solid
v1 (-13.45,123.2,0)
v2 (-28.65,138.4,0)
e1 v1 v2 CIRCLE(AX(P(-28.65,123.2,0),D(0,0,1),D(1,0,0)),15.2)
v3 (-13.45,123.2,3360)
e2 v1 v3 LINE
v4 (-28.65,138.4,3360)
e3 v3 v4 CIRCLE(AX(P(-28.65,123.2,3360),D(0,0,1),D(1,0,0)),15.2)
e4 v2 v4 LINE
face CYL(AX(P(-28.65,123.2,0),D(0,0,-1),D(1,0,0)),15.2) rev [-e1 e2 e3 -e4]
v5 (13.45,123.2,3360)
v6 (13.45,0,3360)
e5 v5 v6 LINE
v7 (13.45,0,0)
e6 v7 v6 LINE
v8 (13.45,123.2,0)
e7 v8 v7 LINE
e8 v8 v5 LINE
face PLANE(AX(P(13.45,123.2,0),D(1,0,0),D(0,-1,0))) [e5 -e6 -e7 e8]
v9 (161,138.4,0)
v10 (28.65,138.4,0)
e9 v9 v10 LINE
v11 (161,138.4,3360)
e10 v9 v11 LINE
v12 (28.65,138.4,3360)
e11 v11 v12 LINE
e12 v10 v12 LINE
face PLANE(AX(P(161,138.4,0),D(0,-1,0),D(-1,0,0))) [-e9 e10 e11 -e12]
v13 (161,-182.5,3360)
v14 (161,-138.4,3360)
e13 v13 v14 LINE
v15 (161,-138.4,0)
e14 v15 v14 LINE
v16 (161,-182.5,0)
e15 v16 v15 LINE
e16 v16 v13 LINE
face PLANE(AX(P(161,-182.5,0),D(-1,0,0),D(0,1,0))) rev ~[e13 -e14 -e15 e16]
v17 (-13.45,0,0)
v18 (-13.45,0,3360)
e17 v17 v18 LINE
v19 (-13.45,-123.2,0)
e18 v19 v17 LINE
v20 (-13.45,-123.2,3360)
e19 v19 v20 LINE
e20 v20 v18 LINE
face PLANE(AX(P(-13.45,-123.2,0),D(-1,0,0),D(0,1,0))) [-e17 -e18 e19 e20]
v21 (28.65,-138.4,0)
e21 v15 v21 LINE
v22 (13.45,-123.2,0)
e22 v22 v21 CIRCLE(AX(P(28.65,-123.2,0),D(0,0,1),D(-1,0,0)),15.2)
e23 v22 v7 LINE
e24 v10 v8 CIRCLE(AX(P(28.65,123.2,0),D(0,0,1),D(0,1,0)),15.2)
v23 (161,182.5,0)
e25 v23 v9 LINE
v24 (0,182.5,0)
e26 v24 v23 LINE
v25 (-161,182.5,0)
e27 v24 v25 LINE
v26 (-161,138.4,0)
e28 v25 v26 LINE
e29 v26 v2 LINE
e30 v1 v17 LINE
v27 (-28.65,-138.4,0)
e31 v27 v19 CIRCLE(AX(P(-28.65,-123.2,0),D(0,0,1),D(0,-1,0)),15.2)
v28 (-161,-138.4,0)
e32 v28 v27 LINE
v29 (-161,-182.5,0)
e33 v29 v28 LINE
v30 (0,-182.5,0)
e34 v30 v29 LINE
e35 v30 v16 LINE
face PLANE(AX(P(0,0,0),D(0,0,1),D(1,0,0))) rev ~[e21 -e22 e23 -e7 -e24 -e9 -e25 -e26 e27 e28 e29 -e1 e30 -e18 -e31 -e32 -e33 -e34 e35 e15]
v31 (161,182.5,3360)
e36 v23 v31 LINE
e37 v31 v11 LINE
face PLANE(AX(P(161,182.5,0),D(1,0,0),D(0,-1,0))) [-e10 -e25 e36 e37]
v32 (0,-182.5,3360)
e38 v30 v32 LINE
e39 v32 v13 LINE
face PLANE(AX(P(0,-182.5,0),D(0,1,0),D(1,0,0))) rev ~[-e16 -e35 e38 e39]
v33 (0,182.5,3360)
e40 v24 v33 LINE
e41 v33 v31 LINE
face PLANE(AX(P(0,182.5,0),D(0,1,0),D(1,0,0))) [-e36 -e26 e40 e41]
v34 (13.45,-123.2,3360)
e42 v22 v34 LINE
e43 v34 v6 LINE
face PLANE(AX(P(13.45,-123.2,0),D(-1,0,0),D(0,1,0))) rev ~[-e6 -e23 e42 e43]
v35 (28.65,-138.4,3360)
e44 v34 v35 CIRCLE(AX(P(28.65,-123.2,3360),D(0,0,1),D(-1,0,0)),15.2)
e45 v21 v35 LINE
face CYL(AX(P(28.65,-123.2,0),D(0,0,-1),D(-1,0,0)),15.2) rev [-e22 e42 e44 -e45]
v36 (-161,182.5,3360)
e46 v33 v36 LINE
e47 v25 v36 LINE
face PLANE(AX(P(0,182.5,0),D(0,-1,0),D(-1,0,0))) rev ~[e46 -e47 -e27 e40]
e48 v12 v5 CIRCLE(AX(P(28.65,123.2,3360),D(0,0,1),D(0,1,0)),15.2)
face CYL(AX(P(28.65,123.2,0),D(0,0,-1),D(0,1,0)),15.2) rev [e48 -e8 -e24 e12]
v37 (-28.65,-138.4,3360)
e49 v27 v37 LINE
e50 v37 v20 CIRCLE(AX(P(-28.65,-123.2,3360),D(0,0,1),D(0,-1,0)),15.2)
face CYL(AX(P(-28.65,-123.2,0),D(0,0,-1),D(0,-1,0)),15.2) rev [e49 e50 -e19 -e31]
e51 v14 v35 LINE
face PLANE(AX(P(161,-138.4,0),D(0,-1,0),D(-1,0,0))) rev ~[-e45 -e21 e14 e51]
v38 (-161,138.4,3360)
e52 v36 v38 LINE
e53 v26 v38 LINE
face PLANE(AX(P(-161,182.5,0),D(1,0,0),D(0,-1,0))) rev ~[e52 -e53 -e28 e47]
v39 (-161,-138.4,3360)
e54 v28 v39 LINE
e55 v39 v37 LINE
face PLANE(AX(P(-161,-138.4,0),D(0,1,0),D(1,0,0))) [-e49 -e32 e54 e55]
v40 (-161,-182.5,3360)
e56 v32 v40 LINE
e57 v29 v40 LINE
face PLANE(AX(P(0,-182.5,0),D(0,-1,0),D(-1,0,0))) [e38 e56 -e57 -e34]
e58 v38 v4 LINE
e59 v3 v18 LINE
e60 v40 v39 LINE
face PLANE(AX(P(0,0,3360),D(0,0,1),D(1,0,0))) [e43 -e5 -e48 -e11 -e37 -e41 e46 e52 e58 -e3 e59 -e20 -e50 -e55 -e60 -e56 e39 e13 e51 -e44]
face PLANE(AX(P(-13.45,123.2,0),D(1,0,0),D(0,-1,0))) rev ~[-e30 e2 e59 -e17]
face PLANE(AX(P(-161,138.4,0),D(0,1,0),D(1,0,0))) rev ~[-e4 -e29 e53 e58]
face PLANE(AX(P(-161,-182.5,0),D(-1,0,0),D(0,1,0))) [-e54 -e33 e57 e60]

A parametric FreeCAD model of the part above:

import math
import FreeCAD as App
import Part
import Sketcher

V = App.Vector
Q = App.Units.Quantity

doc = App.newDocument("Part")
body = doc.addObject("PartDesign::Body", "Body")

# Sketch on XY plane
sketch1 = doc.addObject("Sketcher::SketchObject", "Sketch")
body.addObject(sketch1)
sketch1.AttachmentSupport = (doc.XY_Plane, [""])
sketch1.MapMode = "FlatFace"
sketch1.addGeometry(Part.LineSegment(V(-161, -138, 0), V(-161, -182, 0)), False)
sketch1.addGeometry(Part.LineSegment(V(-161, -182, 0), V(161, -182, 0)), False)
sketch1.addGeometry(Part.LineSegment(V(161, -182, 0), V(161, -138, 0)), False)
sketch1.addGeometry(Part.LineSegment(V(161, -138, 0), V(29, -138, 0)), False)
sketch1.addGeometry(Part.ArcOfCircle(Part.Circle(V(29, -123, 0), V(0, 0, 1), 15), math.radians(180), math.radians(270)), False)
sketch1.addGeometry(Part.LineSegment(V(13, -123, 0), V(13, 123, 0)), False)
sketch1.addGeometry(Part.ArcOfCircle(Part.Circle(V(29, 123, 0), V(0, 0, 1), 15), math.radians(90), math.radians(180)), False)
sketch1.addGeometry(Part.LineSegment(V(29, 138, 0), V(161, 138, 0)), False)
sketch1.addGeometry(Part.LineSegment(V(161, 138, 0), V(161, 182, 0)), False)
sketch1.addGeometry(Part.LineSegment(V(161, 182, 0), V(-161, 182, 0)), False)
sketch1.addGeometry(Part.LineSegment(V(-161, 182, 0), V(-161, 138, 0)), False)
sketch1.addGeometry(Part.LineSegment(V(-161, 138, 0), V(-29, 138, 0)), False)
sketch1.addGeometry(Part.ArcOfCircle(Part.Circle(V(-29, 123, 0), V(0, 0, 1), 15), math.radians(0), math.radians(90)), False)
sketch1.addGeometry(Part.LineSegment(V(-13, 123, 0), V(-13, -123, 0)), False)
sketch1.addGeometry(Part.ArcOfCircle(Part.Circle(V(-29, -123, 0), V(0, 0, 1), 15), math.radians(-90), math.radians(0)), False)
sketch1.addGeometry(Part.LineSegment(V(-29, -138, 0), V(-161, -138, 0)), False)
sketch1.addConstraint(Sketcher.Constraint("Coincident", 0, 2, 1, 1))
sketch1.addConstraint(Sketcher.Constraint("Coincident", 1, 2, 2, 1))
sketch1.addConstraint(Sketcher.Constraint("Coincident", 2, 2, 3, 1))
sketch1.addConstraint(Sketcher.Constraint("Tangent", 3, 2, 4, 2))
sketch1.addConstraint(Sketcher.Constraint("Tangent", 4, 1, 5, 1))
sketch1.addConstraint(Sketcher.Constraint("Tangent", 5, 2, 6, 2))
sketch1.addConstraint(Sketcher.Constraint("Tangent", 6, 1, 7, 1))
sketch1.addConstraint(Sketcher.Constraint("Coincident", 7, 2, 8, 1))
sketch1.addConstraint(Sketcher.Constraint("Coincident", 8, 2, 9, 1))
sketch1.addConstraint(Sketcher.Constraint("Coincident", 9, 2, 10, 1))
sketch1.addConstraint(Sketcher.Constraint("Coincident", 10, 2, 11, 1))
sketch1.addConstraint(Sketcher.Constraint("Tangent", 11, 2, 12, 2))
sketch1.addConstraint(Sketcher.Constraint("Tangent", 12, 1, 13, 1))
sketch1.addConstraint(Sketcher.Constraint("Tangent", 13, 2, 14, 2))
sketch1.addConstraint(Sketcher.Constraint("Tangent", 14, 1, 15, 1))
sketch1.addConstraint(Sketcher.Constraint("Coincident", 15, 2, 0, 1))
sketch1.addConstraint(Sketcher.Constraint("Vertical", 0))
sketch1.addConstraint(Sketcher.Constraint("Horizontal", 1))
sketch1.addConstraint(Sketcher.Constraint("Vertical", 2))
sketch1.addConstraint(Sketcher.Constraint("Horizontal", 3))
sketch1.addConstraint(Sketcher.Constraint("Vertical", 5))
sketch1.addConstraint(Sketcher.Constraint("Horizontal", 7))
sketch1.addConstraint(Sketcher.Constraint("Vertical", 8))
sketch1.addConstraint(Sketcher.Constraint("Horizontal", 9))
sketch1.addConstraint(Sketcher.Constraint("Vertical", 10))
sketch1.addConstraint(Sketcher.Constraint("Horizontal", 11))
sketch1.addConstraint(Sketcher.Constraint("Vertical", 13))
sketch1.addConstraint(Sketcher.Constraint("Horizontal", 15))
sketch1.addConstraint(Sketcher.Constraint("Equal", 4, 6))
sketch1.addConstraint(Sketcher.Constraint("Equal", 6, 12))
sketch1.addConstraint(Sketcher.Constraint("Equal", 12, 14))
sketch1.addConstraint(Sketcher.Constraint("Symmetric", 4, 3, 12, 3, -1, 1))
sketch1.addConstraint(Sketcher.Constraint("Symmetric", 0, 2, 8, 2, -1, 1))
sketch1.addConstraint(Sketcher.Constraint("Symmetric", 7, 2, 10, 2, -2))
sketch1.addConstraint(Sketcher.Constraint("Symmetric", 2, 2, 15, 2, -2))
sketch1.addConstraint(Sketcher.Constraint("Radius", 4, Q("15.2 mm")))
sketch1.addConstraint(Sketcher.Constraint("DistanceY", 0, 2, 0, 1, Q("44.1 mm")))
sketch1.addConstraint(Sketcher.Constraint("DistanceX", 0, 2, -1, 1, Q("161 mm")))
sketch1.addConstraint(Sketcher.Constraint("DistanceY", 0, 2, -1, 1, Q("182.5 mm")))
sketch1.addConstraint(Sketcher.Constraint("DistanceX", -1, 1, 4, 1, Q("13.45 mm")))
pad1 = doc.addObject("PartDesign::Pad", "Pad")
body.addObject(pad1)
pad1.Profile = sketch1
pad1.Length = 3360

doc.recompute()
